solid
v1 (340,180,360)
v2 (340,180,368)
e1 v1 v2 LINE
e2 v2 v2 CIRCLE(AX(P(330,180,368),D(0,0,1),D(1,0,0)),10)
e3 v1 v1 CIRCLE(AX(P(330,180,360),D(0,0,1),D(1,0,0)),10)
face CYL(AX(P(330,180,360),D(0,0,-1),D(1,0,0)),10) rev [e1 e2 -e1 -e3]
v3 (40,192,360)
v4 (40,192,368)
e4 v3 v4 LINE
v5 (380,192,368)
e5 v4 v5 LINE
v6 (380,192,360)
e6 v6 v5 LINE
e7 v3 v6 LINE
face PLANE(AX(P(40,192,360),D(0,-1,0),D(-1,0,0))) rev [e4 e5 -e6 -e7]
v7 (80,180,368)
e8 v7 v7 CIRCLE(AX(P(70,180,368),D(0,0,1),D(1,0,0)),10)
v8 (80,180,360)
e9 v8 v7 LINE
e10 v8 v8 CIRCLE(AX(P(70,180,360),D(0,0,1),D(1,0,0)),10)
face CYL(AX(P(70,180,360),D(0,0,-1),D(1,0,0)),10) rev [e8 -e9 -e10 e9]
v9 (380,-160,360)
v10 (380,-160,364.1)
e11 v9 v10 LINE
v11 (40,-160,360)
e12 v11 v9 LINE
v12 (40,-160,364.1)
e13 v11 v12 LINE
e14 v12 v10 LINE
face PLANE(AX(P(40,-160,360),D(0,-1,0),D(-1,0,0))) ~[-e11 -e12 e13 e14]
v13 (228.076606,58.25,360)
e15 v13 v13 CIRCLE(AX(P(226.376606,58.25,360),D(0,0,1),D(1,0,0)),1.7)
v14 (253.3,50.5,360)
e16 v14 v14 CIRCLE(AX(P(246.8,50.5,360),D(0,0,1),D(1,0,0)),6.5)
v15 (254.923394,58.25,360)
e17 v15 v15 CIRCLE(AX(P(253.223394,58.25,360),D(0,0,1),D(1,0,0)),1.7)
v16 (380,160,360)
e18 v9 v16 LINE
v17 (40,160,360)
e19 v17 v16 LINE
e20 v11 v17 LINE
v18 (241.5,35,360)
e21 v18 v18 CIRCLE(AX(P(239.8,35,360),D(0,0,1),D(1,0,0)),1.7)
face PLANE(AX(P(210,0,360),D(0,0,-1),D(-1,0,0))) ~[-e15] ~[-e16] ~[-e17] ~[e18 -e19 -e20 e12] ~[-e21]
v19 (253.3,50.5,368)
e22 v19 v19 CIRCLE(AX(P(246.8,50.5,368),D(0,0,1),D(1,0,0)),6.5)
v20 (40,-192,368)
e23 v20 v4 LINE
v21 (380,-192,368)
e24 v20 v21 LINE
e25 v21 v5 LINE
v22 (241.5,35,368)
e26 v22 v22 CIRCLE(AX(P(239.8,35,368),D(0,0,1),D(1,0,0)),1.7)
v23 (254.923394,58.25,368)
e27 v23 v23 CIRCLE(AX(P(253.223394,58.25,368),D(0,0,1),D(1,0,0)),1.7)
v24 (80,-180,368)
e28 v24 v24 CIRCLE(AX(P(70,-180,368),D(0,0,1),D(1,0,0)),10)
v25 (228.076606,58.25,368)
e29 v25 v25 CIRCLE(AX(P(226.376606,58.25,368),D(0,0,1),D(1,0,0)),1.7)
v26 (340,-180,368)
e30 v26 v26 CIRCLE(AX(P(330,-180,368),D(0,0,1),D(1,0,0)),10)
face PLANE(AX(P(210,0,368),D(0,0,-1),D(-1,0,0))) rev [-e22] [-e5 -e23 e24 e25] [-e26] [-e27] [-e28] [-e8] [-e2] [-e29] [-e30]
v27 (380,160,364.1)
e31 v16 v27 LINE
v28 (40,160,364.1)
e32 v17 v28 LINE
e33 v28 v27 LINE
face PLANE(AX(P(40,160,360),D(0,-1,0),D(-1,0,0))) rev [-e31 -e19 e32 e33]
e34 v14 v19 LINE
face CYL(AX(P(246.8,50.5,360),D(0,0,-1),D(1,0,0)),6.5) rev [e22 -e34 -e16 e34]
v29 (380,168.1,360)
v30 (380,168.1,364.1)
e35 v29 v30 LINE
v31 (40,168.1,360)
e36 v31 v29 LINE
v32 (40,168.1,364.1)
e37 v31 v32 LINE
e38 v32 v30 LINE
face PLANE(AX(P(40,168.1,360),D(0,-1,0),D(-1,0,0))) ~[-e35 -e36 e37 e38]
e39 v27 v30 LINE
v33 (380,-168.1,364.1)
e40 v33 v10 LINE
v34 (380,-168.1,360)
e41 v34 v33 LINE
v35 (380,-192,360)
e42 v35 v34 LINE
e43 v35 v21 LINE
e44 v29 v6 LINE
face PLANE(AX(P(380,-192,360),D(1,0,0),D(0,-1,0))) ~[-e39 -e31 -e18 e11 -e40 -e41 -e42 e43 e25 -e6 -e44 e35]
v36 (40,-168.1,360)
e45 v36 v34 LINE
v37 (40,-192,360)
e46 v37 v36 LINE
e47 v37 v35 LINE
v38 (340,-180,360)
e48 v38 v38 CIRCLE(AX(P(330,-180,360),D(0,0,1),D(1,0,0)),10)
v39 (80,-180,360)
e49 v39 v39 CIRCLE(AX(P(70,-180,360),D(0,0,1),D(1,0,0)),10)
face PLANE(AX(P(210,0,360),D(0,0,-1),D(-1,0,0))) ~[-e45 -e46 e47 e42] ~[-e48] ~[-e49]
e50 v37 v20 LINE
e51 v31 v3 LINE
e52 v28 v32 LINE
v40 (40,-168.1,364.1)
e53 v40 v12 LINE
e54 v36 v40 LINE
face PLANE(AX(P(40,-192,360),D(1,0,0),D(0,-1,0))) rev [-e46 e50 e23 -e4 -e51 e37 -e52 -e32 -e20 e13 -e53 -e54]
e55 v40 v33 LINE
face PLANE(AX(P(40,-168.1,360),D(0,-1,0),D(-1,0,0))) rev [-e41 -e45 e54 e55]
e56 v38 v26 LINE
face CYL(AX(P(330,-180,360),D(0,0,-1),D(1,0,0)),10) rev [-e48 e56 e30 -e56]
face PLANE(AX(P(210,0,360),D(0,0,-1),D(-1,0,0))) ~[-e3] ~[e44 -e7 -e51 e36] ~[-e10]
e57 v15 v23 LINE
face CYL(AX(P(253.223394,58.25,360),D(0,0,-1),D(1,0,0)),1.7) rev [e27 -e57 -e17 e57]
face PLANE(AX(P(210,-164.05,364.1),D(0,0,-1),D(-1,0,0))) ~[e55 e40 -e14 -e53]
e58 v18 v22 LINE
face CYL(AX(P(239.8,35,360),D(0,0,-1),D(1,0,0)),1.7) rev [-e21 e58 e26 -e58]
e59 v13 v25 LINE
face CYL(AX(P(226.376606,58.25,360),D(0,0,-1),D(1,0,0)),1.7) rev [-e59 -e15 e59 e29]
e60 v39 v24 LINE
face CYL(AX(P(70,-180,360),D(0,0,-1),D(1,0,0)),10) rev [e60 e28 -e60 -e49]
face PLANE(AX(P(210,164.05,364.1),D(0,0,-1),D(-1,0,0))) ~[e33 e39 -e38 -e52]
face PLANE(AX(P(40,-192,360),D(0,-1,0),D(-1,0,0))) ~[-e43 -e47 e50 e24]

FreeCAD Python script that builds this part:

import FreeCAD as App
import Part
import Sketcher

doc = App.newDocument("Part")
body = doc.addObject("PartDesign::Body", "Body")

sketch1 = body.newObject("Sketcher::SketchObject", "Sketch")
sketch1.AttachmentSupport = (doc.getObject("XY_Plane"), [""])
sketch1.MapMode = "FlatFace"
sketch1.AttachmentOffset = App.Placement(App.Vector(0, 0, 40), App.Rotation())
sketch1.addGeometry(Part.LineSegment(App.Vector(40, 192, 0), App.Vector(40, -192, 0)), False)
sketch1.addGeometry(Part.LineSegment(App.Vector(40, -192, 0), App.Vector(380, -192, 0)), False)
sketch1.addGeometry(Part.LineSegment(App.Vector(380, -192, 0), App.Vector(380, 192, 0)), False)
sketch1.addGeometry(Part.LineSegment(App.Vector(380, 192, 0), App.Vector(40, 192, 0)), False)
sketch1.addGeometry(Part.Circle(App.Vector(70, -180, 0), App.Vector(0, 0, 1), 10), False)
sketch1.addGeometry(Part.Circle(App.Vector(330, -180, 0), App.Vector(0, 0, 1), 10), False)
sketch1.addGeometry(Part.Circle(App.Vector(70, 180, 0), App.Vector(0, 0, 1), 10), False)
sketch1.addGeometry(Part.Circle(App.Vector(239.8, 35, 0), App.Vector(0, 0, 1), 1.7), False)
sketch1.addGeometry(Part.Circle(App.Vector(226.4, 58.2, 0), App.Vector(0, 0, 1), 1.7), False)
sketch1.addGeometry(Part.Circle(App.Vector(246.8, 50.5, 0), App.Vector(0, 0, 1), 6.5), False)
sketch1.addGeometry(Part.Circle(App.Vector(253.2, 58.2, 0), App.Vector(0, 0, 1), 1.7), False)
sketch1.addGeometry(Part.Circle(App.Vector(330, 180, 0), App.Vector(0, 0, 1), 10), False)
sketch1.addConstraint(Sketcher.Constraint("Coincident", 0, 2, 1, 1))
sketch1.addConstraint(Sketcher.Constraint("Coincident", 1, 2, 2, 1))
sketch1.addConstraint(Sketcher.Constraint("Coincident", 2, 2, 3, 1))
sketch1.addConstraint(Sketcher.Constraint("Coincident", 3, 2, 0, 1))
sketch1.addConstraint(Sketcher.Constraint("Vertical", 0))
sketch1.addConstraint(Sketcher.Constraint("Horizontal", 1))
sketch1.addConstraint(Sketcher.Constraint("Vertical", 2))
sketch1.addConstraint(Sketcher.Constraint("Horizontal", 3))
sketch1.addConstraint(Sketcher.Constraint("Equal", 4, 5))
sketch1.addConstraint(Sketcher.Constraint("Equal", 5, 6))
sketch1.addConstraint(Sketcher.Constraint("Equal", 7, 8))
sketch1.addConstraint(Sketcher.Constraint("Equal", 8, 10))
sketch1.addConstraint(Sketcher.Constraint("Equal", 6, 11))
sketch1.addConstraint(Sketcher.Constraint("Symmetric", 4, 3, 6, 3, -1))
sketch1.addConstraint(Sketcher.Constraint("Symmetric", 5, 3, 11, 3, -1))
sketch1.addConstraint(Sketcher.Constraint("Horizontal", 4, 3, 5, 3))
sketch1.addConstraint(Sketcher.Constraint("Horizontal", 8, 3, 10, 3))
sketch1.addConstraint(Sketcher.Constraint("Diameter", 4, 20.0))
sketch1.addConstraint(Sketcher.Constraint("Diameter", 9, 13.0))
sketch1.addConstraint(Sketcher.Constraint("Diameter", 7, 3.4))
sketch1.addConstraint(Sketcher.Constraint("DistanceX", 1, 1, 1, 2, 340.0))
sketch1.addConstraint(Sketcher.Constraint("DistanceY", 0, 2, 0, 1, 384.0))
sketch1.addConstraint(Sketcher.Constraint("DistanceX", -1, 1, 4, 3, 70.0))
sketch1.addConstraint(Sketcher.Constraint("DistanceY", 4, 3, -1, 1, 180.0))
sketch1.addConstraint(Sketcher.Constraint("DistanceX", -1, 1, 5, 3, 330.0))
sketch1.addConstraint(Sketcher.Constraint("DistanceY", -1, 1, 7, 3, 35.0))
sketch1.addConstraint(Sketcher.Constraint("DistanceX", -1, 1, 0, 2, 40.0))
sketch1.addConstraint(Sketcher.Constraint("DistanceY", 0, 2, -1, 1, 192.0))
sketch1.addConstraint(Sketcher.Constraint("DistanceX", 7, 3, 9, 3, 7.0))
sketch1.addConstraint(Sketcher.Constraint("DistanceX", -1, 1, 7, 3, 239.8))
sketch1.addConstraint(Sketcher.Constraint("DistanceY", -1, 1, 9, 3, 50.5))
sketch1.addConstraint(Sketcher.Constraint("DistanceY", -1, 1, 8, 3, 58.25))
sketch1.addConstraint(Sketcher.Constraint("DistanceX", 8, 3, 10, 3, 26.846788))
sketch1.addConstraint(Sketcher.Constraint("DistanceX", -1, 1, 8, 3, 226.376606))
pad1 = body.newObject("PartDesign::Pad", "Pad")
pad1.Profile = sketch1
pad1.Length = 8
pad1.Reversed = True

sketch2 = body.newObject("Sketcher::SketchObject", "Sketch001")
sketch2.AttachmentSupport = (doc.getObject("XY_Plane"), [""])
sketch2.MapMode = "FlatFace"
sketch2.AttachmentOffset = App.Placement(App.Vector(0, 0, 40), App.Rotation())
sketch2.addGeometry(Part.LineSegment(App.Vector(40, 168, 0), App.Vector(40, 160, 0)), False)
sketch2.addGeometry(Part.LineSegment(App.Vector(40, 160, 0), App.Vector(380, 160, 0)), False)
sketch2.addGeometry(Part.LineSegment(App.Vector(380, 160, 0), App.Vector(380, 168, 0)), False)
sketch2.addGeometry(Part.LineSegment(App.Vector(380, 168, 0), App.Vector(40, 168, 0)), False)
sketch2.addGeometry(Part.LineSegment(App.Vector(40, -160, 0), App.Vector(40, -168, 0)), False)
sketch2.addGeometry(Part.LineSegment(App.Vector(40, -168, 0), App.Vector(380, -168, 0)), False)
sketch2.addGeometry(Part.LineSegment(App.Vector(380, -168, 0), App.Vector(380, -160, 0)), False)
sketch2.addGeometry(Part.LineSegment(App.Vector(380, -160, 0), App.Vector(40, -160, 0)), False)
sketch2.addConstraint(Sketcher.Constraint("Coincident", 0, 2, 1, 1))
sketch2.addConstraint(Sketcher.Constraint("Coincident", 1, 2, 2, 1))
sketch2.addConstraint(Sketcher.Constraint("Coincident", 2, 2, 3, 1))
sketch2.addConstraint(Sketcher.Constraint("Coincident", 3, 2, 0, 1))
sketch2.addConstraint(Sketcher.Constraint("Coincident", 4, 2, 5, 1))
sketch2.addConstraint(Sketcher.Constraint("Coincident", 5, 2, 6, 1))
sketch2.addConstraint(Sketcher.Constraint("Coincident", 6, 2, 7, 1))
sketch2.addConstraint(Sketcher.Constraint("Coincident", 7, 2, 4, 1))
sketch2.addConstraint(Sketcher.Constraint("Vertical", 0))
sketch2.addConstraint(Sketcher.Constraint("Horizontal", 1))
sketch2.addConstraint(Sketcher.Constraint("Vertical", 2))
sketch2.addConstraint(Sketcher.Constraint("Horizontal", 3))
sketch2.addConstraint(Sketcher.Constraint("Vertical", 4))
sketch2.addConstraint(Sketcher.Constraint("Horizontal", 5))
sketch2.addConstraint(Sketcher.Constraint("Vertical", 6))
sketch2.addConstraint(Sketcher.Constraint("Horizontal", 7))
sketch2.addConstraint(Sketcher.Constraint("Symmetric", 3, 2, 4, 2, -1))
sketch2.addConstraint(Sketcher.Constraint("Symmetric", 1, 2, 6, 2, -1))
sketch2.addConstraint(Sketcher.Constraint("DistanceX", 1, 1, 1, 2, 340.0))
sketch2.addConstraint(Sketcher.Constraint("DistanceY", 0, 2, 0, 1, 8.1))
sketch2.addConstraint(Sketcher.Constraint("DistanceX", -1, 1, 0, 2, 40.0))
sketch2.addConstraint(Sketcher.Constraint("DistanceY", -1, 1, 0, 2, 160.0))
pocket1 = body.newObject("PartDesign::Pocket", "Pocket")
pocket1.Profile = sketch2
pocket1.Length = 4.1
body2 = doc.addObject("PartDesign::Body", "Body001")
doc.recompute()

mirroring = doc.addObject("Part::Mirroring", "Mirroring")
mirroring.Source = body
mirroring.Base = App.Vector(0, 0, 200)
mirroring.Normal = App.Vector(0, 0, 1)
body2.BaseFeature = mirroring
doc.recompute()
body.Visibility = False
mirroring.Visibility = False

doc.recompute()
